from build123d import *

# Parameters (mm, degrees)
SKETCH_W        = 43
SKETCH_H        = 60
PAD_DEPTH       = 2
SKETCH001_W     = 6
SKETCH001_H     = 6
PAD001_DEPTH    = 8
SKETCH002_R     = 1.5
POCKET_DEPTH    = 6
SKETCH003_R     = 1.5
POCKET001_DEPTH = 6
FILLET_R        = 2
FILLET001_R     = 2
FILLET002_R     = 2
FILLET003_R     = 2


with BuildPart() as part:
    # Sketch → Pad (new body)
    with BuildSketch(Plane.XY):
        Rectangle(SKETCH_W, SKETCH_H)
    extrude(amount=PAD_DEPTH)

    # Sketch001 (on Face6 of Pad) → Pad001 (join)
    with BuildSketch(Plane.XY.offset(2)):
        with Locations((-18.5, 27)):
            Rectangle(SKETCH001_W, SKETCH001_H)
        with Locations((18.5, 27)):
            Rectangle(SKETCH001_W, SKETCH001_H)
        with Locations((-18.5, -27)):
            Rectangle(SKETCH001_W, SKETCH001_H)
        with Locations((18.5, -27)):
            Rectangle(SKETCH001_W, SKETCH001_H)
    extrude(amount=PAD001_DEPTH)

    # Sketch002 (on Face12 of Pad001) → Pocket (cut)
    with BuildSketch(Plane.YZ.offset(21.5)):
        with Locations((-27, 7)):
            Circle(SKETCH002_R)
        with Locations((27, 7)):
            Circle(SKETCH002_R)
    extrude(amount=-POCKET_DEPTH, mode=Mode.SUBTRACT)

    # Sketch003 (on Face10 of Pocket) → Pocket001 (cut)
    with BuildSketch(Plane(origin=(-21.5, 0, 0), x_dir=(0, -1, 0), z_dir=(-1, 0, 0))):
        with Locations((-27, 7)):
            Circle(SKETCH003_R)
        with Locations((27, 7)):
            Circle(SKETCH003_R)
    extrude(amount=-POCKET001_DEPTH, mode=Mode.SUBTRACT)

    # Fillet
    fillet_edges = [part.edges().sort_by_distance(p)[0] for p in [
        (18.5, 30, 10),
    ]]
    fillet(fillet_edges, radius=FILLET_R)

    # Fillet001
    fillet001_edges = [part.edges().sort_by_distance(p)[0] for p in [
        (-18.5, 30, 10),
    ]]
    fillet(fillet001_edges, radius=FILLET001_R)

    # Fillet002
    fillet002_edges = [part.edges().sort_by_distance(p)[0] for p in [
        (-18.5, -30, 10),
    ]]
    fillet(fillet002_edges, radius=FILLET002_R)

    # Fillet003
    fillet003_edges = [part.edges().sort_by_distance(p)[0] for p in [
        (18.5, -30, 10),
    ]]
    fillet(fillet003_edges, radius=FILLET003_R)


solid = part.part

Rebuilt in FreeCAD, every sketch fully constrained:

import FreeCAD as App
import Part
import Sketcher


def edges_at(feature, points):
    """Names of the edges that pass closest to the given points."""
    edges = feature.Shape.Edges
    near = lambda p: min(range(len(edges)), key=lambda i: edges[i].distToShape(Part.Vertex(*p))[0])
    return sorted({f"Edge{near(p) + 1}" for p in points})


def add_polygon(sketch, points):
    """Adds a closed chain of lines whose ends are joined by coincident constraints."""
    first, n = sketch.GeometryCount, len(points)
    for a, b in zip(points, points[1:] + points[:1]):
        sketch.addGeometry(Part.LineSegment(App.Vector(*a, 0), App.Vector(*b, 0)), False)
    for i in range(n):
        sketch.addConstraint(Sketcher.Constraint("Coincident", first + i, 2, first + (i + 1) % n, 1))

doc = App.newDocument("Part")
body = doc.addObject("PartDesign::Body", "Body")

sketch1 = doc.addObject("Sketcher::SketchObject", "Sketch")
body.addObject(sketch1)
sketch1.AttachmentSupport = (doc.XY_Plane, [""])
sketch1.MapMode = "FlatFace"
add_polygon(sketch1, [(-22, 30), (-22, -30), (22, -30), (22, 30)])
sketch1.addConstraint([
    Sketcher.Constraint("Vertical", 0),
    Sketcher.Constraint("Horizontal", 1),
    Sketcher.Constraint("Vertical", 2),
    Sketcher.Constraint("Horizontal", 3),
    Sketcher.Constraint("Symmetric", 0, 2, 2, 2, -1, 1),
    Sketcher.Constraint("DistanceX", 1, 1, 1, 2, 43.0),
    Sketcher.Constraint("DistanceY", 0, 2, 0, 1, 60.0),
])
pad1 = doc.addObject("PartDesign::Pad", "Pad")
body.addObject(pad1)
pad1.Profile = sketch1
pad1.Length = 2

sketch2 = doc.addObject("Sketcher::SketchObject", "Sketch001")
body.addObject(sketch2)
sketch2.AttachmentSupport = (doc.XY_Plane, [""])
sketch2.MapMode = "FlatFace"
sketch2.AttachmentOffset = App.Placement(App.Vector(0, 0, 2), App.Rotation())
add_polygon(sketch2, [(-22, 30), (-22, 24), (-16, 24), (-16, 30)])
add_polygon(sketch2, [(16, 30), (16, 24), (22, 24), (22, 30)])
add_polygon(sketch2, [(-22, -24), (-22, -30), (-16, -30), (-16, -24)])
add_polygon(sketch2, [(16, -24), (16, -30), (22, -30), (22, -24)])
sketch2.addConstraint([
    Sketcher.Constraint("Vertical", 0),
    Sketcher.Constraint("Horizontal", 1),
    Sketcher.Constraint("Vertical", 2),
    Sketcher.Constraint("Horizontal", 3),
    Sketcher.Constraint("Vertical", 4),
    Sketcher.Constraint("Horizontal", 5),
    Sketcher.Constraint("Vertical", 6),
    Sketcher.Constraint("Horizontal", 7),
    Sketcher.Constraint("Vertical", 8),
    Sketcher.Constraint("Horizontal", 9),
    Sketcher.Constraint("Vertical", 10),
    Sketcher.Constraint("Horizontal", 11),
    Sketcher.Constraint("Vertical", 12),
    Sketcher.Constraint("Horizontal", 13),
    Sketcher.Constraint("Vertical", 14),
    Sketcher.Constraint("Horizontal", 15),
    Sketcher.Constraint("Symmetric", 6, 2, 8, 2, -1, 1),
    Sketcher.Constraint("Symmetric", 4, 2, 10, 2, -1, 1),
    Sketcher.Constraint("Symmetric", 2, 2, 12, 2, -1, 1),
    Sketcher.Constraint("Symmetric", 0, 2, 14, 2, -1, 1),
    Sketcher.Constraint("Symmetric", 1, 2, 4, 2, -2),
    Sketcher.Constraint("Symmetric", 3, 2, 6, 2, -2),
    Sketcher.Constraint("Equal", 15, 0),
    Sketcher.Constraint("DistanceX", 1, 1, 1, 2, 6.0),
    Sketcher.Constraint("DistanceY", -1, 1, 0, 2, 24.0),
    Sketcher.Constraint("DistanceX", 1, 2, 4, 2, 31.0),
])
pad2 = doc.addObject("PartDesign::Pad", "Pad001")
body.addObject(pad2)
pad2.Profile = sketch2
pad2.Length = 8

sketch3 = doc.addObject("Sketcher::SketchObject", "Sketch002")
body.addObject(sketch3)
sketch3.AttachmentSupport = (doc.YZ_Plane, [""])
sketch3.MapMode = "FlatFace"
sketch3.AttachmentOffset = App.Placement(App.Vector(0, 0, 21.5), App.Rotation())
sketch3.addGeometry([
    Part.Circle(App.Vector(-27, 7, 0), App.Vector(0, 0, 1), 1.5),
    Part.Circle(App.Vector(27, 7, 0), App.Vector(0, 0, 1), 1.5),
], False)
sketch3.addConstraint([
    Sketcher.Constraint("Equal", 0, 1),
    Sketcher.Constraint("Symmetric", 0, 3, 1, 3, -2),
    Sketcher.Constraint("Diameter", 0, 3.0),
    Sketcher.Constraint("DistanceX", 0, 3, -1, 1, 27.0),
    Sketcher.Constraint("DistanceY", -1, 1, 0, 3, 7.0),
])
pocket1 = doc.addObject("PartDesign::Pocket", "Pocket")
body.addObject(pocket1)
pocket1.Profile = sketch3
pocket1.Length = 6

sketch4 = doc.addObject("Sketcher::SketchObject", "Sketch003")
body.addObject(sketch4)
sketch4.AttachmentSupport = (doc.YZ_Plane, [""])
sketch4.MapMode = "FlatFace"
sketch4.AttachmentOffset = App.Placement(App.Vector(0, 0, -21.5), App.Rotation())
sketch4.addGeometry([
    Part.Circle(App.Vector(27, 7, 0), App.Vector(0, 0, 1), 1.5),
    Part.Circle(App.Vector(-27, 7, 0), App.Vector(0, 0, 1), 1.5),
], False)
sketch4.addConstraint([
    Sketcher.Constraint("Equal", 0, 1),
    Sketcher.Constraint("Symmetric", 0, 3, 1, 3, -2),
    Sketcher.Constraint("Diameter", 0, 3.0),
    Sketcher.Constraint("DistanceX", -1, 1, 0, 3, 27.0),
    Sketcher.Constraint("DistanceY", -1, 1, 0, 3, 7.0),
])
pocket2 = doc.addObject("PartDesign::Pocket", "Pocket001")
body.addObject(pocket2)
pocket2.Profile = sketch4
pocket2.Length = 6
pocket2.Reversed = True
doc.recompute()

fillet = doc.addObject("PartDesign::Fillet", "Fillet")
body.addObject(fillet)
fillet.Base = (pocket2, edges_at(pocket2, [(18.5, 30, 10)]))
fillet.Radius = 2
doc.recompute()

fillet2 = doc.addObject("PartDesign::Fillet", "Fillet001")
body.addObject(fillet2)
fillet2.Base = (fillet, edges_at(fillet, [(-18.5, 30, 10)]))
fillet2.Radius = 2
doc.recompute()

fillet3 = doc.addObject("PartDesign::Fillet", "Fillet002")
body.addObject(fillet3)
fillet3.Base = (fillet2, edges_at(fillet2, [(-18.5, -30, 10)]))
fillet3.Radius = 2
doc.recompute()

fillet4 = doc.addObject("PartDesign::Fillet", "Fillet003")
body.addObject(fillet4)
fillet4.Base = (fillet3, edges_at(fillet3, [(18.5, -30, 10)]))
fillet4.Radius = 2

doc.recompute()
